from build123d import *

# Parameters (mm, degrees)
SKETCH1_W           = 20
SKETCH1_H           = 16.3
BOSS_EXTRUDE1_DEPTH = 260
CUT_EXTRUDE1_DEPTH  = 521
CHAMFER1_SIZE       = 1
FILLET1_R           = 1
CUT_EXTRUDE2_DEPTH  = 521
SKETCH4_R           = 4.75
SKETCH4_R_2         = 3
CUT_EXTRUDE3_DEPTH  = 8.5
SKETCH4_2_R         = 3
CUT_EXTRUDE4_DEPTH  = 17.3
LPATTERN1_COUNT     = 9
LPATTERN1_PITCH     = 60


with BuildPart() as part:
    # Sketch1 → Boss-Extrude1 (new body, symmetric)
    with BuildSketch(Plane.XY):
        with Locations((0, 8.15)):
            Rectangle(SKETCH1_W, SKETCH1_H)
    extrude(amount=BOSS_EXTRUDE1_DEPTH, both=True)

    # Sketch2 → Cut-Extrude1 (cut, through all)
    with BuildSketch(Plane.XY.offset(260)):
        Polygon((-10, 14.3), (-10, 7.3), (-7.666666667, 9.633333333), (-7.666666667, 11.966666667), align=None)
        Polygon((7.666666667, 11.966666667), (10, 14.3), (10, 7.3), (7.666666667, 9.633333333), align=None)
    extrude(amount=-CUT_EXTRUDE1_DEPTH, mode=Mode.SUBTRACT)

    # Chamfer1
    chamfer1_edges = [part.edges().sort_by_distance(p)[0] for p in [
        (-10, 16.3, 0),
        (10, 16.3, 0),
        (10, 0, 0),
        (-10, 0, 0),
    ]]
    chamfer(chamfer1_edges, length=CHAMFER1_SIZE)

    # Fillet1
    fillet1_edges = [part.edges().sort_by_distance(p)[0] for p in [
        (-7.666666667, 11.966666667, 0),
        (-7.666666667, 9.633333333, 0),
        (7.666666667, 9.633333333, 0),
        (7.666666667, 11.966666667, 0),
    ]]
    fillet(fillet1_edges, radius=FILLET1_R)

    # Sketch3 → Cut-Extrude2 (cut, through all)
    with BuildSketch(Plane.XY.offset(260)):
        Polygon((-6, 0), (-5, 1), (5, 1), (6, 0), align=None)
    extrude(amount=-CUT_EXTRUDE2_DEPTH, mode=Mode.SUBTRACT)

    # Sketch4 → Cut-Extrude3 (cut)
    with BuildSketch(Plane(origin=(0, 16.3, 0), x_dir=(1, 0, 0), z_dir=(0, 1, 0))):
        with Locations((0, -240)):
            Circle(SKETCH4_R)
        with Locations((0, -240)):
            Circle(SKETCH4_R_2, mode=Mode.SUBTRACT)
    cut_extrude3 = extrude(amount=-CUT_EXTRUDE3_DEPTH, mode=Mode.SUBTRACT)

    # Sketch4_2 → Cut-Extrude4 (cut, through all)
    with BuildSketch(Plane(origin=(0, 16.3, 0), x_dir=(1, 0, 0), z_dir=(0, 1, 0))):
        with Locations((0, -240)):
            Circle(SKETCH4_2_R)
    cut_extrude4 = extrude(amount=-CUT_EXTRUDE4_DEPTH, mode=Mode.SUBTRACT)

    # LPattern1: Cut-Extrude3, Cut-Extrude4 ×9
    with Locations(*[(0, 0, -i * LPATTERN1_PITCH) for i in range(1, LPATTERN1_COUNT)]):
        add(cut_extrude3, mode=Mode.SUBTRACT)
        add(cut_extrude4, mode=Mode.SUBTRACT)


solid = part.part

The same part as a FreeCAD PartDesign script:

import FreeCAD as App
import Part
import Sketcher


def edges_at(feature, points):
    """Names of the edges that pass closest to the given points."""
    edges = feature.Shape.Edges
    near = lambda p: min(range(len(edges)), key=lambda i: edges[i].distToShape(Part.Vertex(*p))[0])
    return sorted({f"Edge{near(p) + 1}" for p in points})


def add_polygon(sketch, points):
    """Adds a closed chain of lines whose ends are joined by coincident constraints."""
    first, n = sketch.GeometryCount, len(points)
    for a, b in zip(points, points[1:] + points[:1]):
        sketch.addGeometry(Part.LineSegment(App.Vector(*a, 0), App.Vector(*b, 0)), False)
    for i in range(n):
        sketch.addConstraint(Sketcher.Constraint("Coincident", first + i, 2, first + (i + 1) % n, 1))

doc = App.newDocument("Part")
body = doc.addObject("PartDesign::Body", "Body")

# Sketch on XY plane
sketch1 = doc.addObject("Sketcher::SketchObject", "Sketch")
body.addObject(sketch1)
sketch1.AttachmentSupport = (doc.XY_Plane, [""])
sketch1.MapMode = "FlatFace"
add_polygon(sketch1, [(-10, 16.3), (-10, 0), (10, 0), (10, 16.3)])  # lines 0-3
sketch1.addConstraint([
    Sketcher.Constraint("Vertical", 0),
    Sketcher.Constraint("Horizontal", 1),
    Sketcher.Constraint("Vertical", 2),
    Sketcher.Constraint("Horizontal", 3),
    Sketcher.Constraint("Symmetric", 0, 2, 1, 2, -1, 1),
    Sketcher.Constraint("DistanceX", 1, 1, 1, 2, 20.0),
    Sketcher.Constraint("DistanceY", 0, 2, 0, 1, 16.3),
])
pad1 = doc.addObject("PartDesign::Pad", "Pad")
body.addObject(pad1)
pad1.Profile = sketch1
pad1.Length = 520
pad1.Midplane = True

# Sketch on XY plane
sketch2 = doc.addObject("Sketcher::SketchObject", "Sketch001")
body.addObject(sketch2)
sketch2.AttachmentSupport = (doc.XY_Plane, [""])
sketch2.MapMode = "FlatFace"
sketch2.AttachmentOffset = App.Placement(App.Vector(0, 0, 260), App.Rotation())
add_polygon(sketch2, [(-10, 14.3), (-10, 7.3), (-7.666667, 9.633333), (-7.666667, 11.966667)])  # lines 0-3
add_polygon(sketch2, [(10, 14.3), (7.666667, 11.966667), (7.666667, 9.633333), (10, 7.3)])  # lines 4-7
sketch2.addConstraint([
    Sketcher.Constraint("Vertical", 0),
    Sketcher.Constraint("Vertical", 2),
    Sketcher.Constraint("Vertical", 5),
    Sketcher.Constraint("Vertical", 7),
    Sketcher.Constraint("Symmetric", 2, 2, 4, 2, -2),
    Sketcher.Constraint("Symmetric", 0, 2, 6, 2, -2),
    Sketcher.Constraint("Perpendicular", 1, 3),
    Sketcher.Constraint("Perpendicular", 3, 4),
    Sketcher.Constraint("Perpendicular", 4, 6),
    Sketcher.Constraint("Horizontal", 1, 2, 5, 2),
    Sketcher.Constraint("DistanceY", 0, 2, 0, 1, 7.0),
    Sketcher.Constraint("DistanceX", 0, 2, -1, 1, 10.0),
    Sketcher.Constraint("DistanceY", -1, 1, 0, 2, 7.3),
    Sketcher.Constraint("Distance", 1, 3.299832),
])
pocket1 = doc.addObject("PartDesign::Pocket", "Pocket")
body.addObject(pocket1)
pocket1.Profile = sketch2
pocket1.Type = "ThroughAll"
doc.recompute()

chamfer = doc.addObject("PartDesign::Chamfer", "Chamfer")
body.addObject(chamfer)
chamfer.Base = (pocket1, edges_at(pocket1, [
    (-10, 16.3, 0),
    (10, 16.3, 0),
    (10, 0, 0),
    (-10, 0, 0),
]))
chamfer.Size = 1
doc.recompute()

fillet = doc.addObject("PartDesign::Fillet", "Fillet")
body.addObject(fillet)
fillet.Base = (chamfer, edges_at(chamfer, [
    (-7.667, 11.967, 0),
    (-7.667, 9.633, 0),
    (7.667, 9.633, 0),
    (7.667, 11.967, 0),
]))
fillet.Radius = 1

# Sketch on XY plane
sketch3 = doc.addObject("Sketcher::SketchObject", "Sketch002")
body.addObject(sketch3)
sketch3.AttachmentSupport = (doc.XY_Plane, [""])
sketch3.MapMode = "FlatFace"
sketch3.AttachmentOffset = App.Placement(App.Vector(0, 0, 260), App.Rotation())
add_polygon(sketch3, [(-5, 1), (-6, 0), (6, 0), (5, 1)])  # lines 0-3
sketch3.addConstraint([
    Sketcher.Constraint("Horizontal", 1),
    Sketcher.Constraint("Horizontal", 3),
    Sketcher.Constraint("Symmetric", 0, 2, 1, 2, -1, 1),
    Sketcher.Constraint("Perpendicular", 0, 2),
    Sketcher.Constraint("Equal", 0, 2),
    Sketcher.Constraint("DistanceX", 1, 1, 1, 2, 12.0),
    Sketcher.Constraint("DistanceX", 3, 2, 3, 1, 10.0),
])
pocket2 = doc.addObject("PartDesign::Pocket", "Pocket001")
body.addObject(pocket2)
pocket2.Profile = sketch3
pocket2.Type = "ThroughAll"

# Sketch on XZ plane
sketch4 = doc.addObject("Sketcher::SketchObject", "Sketch003")
body.addObject(sketch4)
sketch4.AttachmentSupport = (doc.XZ_Plane, [""])
sketch4.MapMode = "FlatFace"
sketch4.AttachmentOffset = App.Placement(App.Vector(0, 0, -16.3), App.Rotation())
sketch4.addGeometry([
    Part.Circle(App.Vector(0, 240, 0), App.Vector(0, 0, 1), 4.75),
    Part.Circle(App.Vector(0, 240, 0), App.Vector(0, 0, 1), 3),
], False)
sketch4.addConstraint([
    Sketcher.Constraint("Coincident", 1, 3, 0, 3),
    Sketcher.Constraint("PointOnObject", 0, 3, -2),
    Sketcher.Constraint("Diameter", 1, 6.0),
    Sketcher.Constraint("Diameter", 0, 9.5),
    Sketcher.Constraint("DistanceY", -1, 1, 0, 3, 240.0),
])
pocket3 = doc.addObject("PartDesign::Pocket", "Pocket002")
body.addObject(pocket3)
pocket3.Profile = sketch4
pocket3.Length = 8.5
pocket3.Reversed = True

# Sketch on XZ plane
sketch5 = doc.addObject("Sketcher::SketchObject", "Sketch004")
body.addObject(sketch5)
sketch5.AttachmentSupport = (doc.XZ_Plane, [""])
sketch5.MapMode = "FlatFace"
sketch5.AttachmentOffset = App.Placement(App.Vector(0, 0, -16.3), App.Rotation())
sketch5.addGeometry(Part.Circle(App.Vector(0, 240, 0), App.Vector(0, 0, 1), 3), False)
sketch5.addConstraint([
    Sketcher.Constraint("PointOnObject", 0, 3, -2),
    Sketcher.Constraint("Diameter", 0, 6.0),
    Sketcher.Constraint("DistanceY", -1, 1, 0, 3, 240.0),
])
pocket4 = doc.addObject("PartDesign::Pocket", "Pocket003")
body.addObject(pocket4)
pocket4.Profile = sketch5
pocket4.Type = "ThroughAll"
pocket4.Reversed = True
doc.recompute()

linearpattern = doc.addObject("PartDesign::LinearPattern", "LinearPattern")
body.addObject(linearpattern)
linearpattern.Originals = [pocket3, pocket4]
linearpattern.Direction = (doc.Z_Axis, [""])
linearpattern.Mode = "offset"
linearpattern.Offset = 60
linearpattern.Occurrences = 9
linearpattern.Reversed = True
body.Tip = linearpattern

doc.recompute()
